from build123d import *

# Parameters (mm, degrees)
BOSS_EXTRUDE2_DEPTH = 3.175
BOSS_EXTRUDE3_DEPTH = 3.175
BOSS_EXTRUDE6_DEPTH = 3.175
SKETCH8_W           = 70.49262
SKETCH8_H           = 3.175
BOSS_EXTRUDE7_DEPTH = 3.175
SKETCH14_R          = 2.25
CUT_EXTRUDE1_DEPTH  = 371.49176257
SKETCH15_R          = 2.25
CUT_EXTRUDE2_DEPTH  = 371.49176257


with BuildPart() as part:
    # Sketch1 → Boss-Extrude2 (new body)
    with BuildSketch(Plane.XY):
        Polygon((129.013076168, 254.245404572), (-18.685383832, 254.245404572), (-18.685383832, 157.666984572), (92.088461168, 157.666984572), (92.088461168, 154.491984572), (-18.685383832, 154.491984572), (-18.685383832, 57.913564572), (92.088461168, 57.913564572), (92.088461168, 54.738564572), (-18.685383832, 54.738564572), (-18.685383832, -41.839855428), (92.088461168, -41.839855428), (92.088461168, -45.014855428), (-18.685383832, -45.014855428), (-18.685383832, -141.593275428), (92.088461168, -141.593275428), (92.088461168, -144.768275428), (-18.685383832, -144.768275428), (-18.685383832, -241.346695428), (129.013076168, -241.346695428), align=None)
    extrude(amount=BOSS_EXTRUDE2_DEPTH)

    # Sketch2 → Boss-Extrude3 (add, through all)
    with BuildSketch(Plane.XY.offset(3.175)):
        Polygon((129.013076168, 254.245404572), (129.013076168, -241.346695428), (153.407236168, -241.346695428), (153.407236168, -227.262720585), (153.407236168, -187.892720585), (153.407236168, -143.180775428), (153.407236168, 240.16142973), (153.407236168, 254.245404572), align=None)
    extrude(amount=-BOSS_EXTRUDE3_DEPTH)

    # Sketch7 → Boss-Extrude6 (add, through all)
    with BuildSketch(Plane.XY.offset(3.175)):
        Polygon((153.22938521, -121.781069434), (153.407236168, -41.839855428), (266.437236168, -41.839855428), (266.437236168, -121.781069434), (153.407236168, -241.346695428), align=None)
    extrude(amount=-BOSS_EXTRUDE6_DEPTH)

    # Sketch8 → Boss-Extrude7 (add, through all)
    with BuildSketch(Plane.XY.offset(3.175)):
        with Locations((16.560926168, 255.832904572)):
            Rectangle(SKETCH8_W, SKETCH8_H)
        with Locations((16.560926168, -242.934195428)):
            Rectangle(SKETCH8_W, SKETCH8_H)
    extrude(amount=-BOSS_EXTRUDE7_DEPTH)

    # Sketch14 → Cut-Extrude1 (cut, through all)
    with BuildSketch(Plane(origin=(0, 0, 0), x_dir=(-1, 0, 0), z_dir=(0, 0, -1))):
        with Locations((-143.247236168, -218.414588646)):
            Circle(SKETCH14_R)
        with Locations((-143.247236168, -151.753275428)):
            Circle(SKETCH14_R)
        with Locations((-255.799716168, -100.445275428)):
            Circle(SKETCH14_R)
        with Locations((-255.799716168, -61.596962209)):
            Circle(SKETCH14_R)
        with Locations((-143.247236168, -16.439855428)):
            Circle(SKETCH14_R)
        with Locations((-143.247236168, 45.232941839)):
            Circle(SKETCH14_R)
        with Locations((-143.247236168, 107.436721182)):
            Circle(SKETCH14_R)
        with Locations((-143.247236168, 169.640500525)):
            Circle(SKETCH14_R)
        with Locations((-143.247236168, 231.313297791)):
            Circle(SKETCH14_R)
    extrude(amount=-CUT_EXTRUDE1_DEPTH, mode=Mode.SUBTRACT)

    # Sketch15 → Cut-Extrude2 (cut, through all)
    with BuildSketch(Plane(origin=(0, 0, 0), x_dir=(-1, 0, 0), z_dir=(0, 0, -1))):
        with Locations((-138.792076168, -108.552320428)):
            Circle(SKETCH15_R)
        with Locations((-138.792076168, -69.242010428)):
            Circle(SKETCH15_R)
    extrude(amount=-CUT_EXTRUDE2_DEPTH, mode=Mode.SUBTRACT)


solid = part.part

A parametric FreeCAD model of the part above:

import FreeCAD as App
import Part
import Sketcher
from FreeCAD import Vector
Q = App.Units.Quantity


def add_polygon(sketch, points):
    """Adds a closed chain of lines whose ends are joined by coincident constraints."""
    first, n = sketch.GeometryCount, len(points)
    for a, b in zip(points, points[1:] + points[:1]):
        sketch.addGeometry(Part.LineSegment(App.Vector(*a, 0), App.Vector(*b, 0)), False)
    for i in range(n):
        sketch.addConstraint(Sketcher.Constraint("Coincident", first + i, 2, first + (i + 1) % n, 1))

doc = App.newDocument("Part")
body = doc.addObject("PartDesign::Body", "Body")

sketch1 = body.newObject("Sketcher::SketchObject", "Sketch")
sketch1.AttachmentSupport = (doc.getObject("XY_Plane"), [""])
sketch1.MapMode = "FlatFace"
add_polygon(sketch1, [(129.013076, 254.245405), (-18.685384, 254.245405), (-18.685384, 157.666985), (92.088461, 157.666985), (92.088461, 154.491985), (-18.685384, 154.491985), (-18.685384, 57.913565), (92.088461, 57.913565), (92.088461, 54.738565), (-18.685384, 54.738565), (-18.685384, -41.839855), (92.088461, -41.839855), (92.088461, -45.014855), (-18.685384, -45.014855), (-18.685384, -141.593275), (92.088461, -141.593275), (92.088461, -144.768275), (-18.685384, -144.768275), (-18.685384, -241.346695), (129.013076, -241.346695)])
sketch1.addConstraint(Sketcher.Constraint("Horizontal", 0))
sketch1.addConstraint(Sketcher.Constraint("Vertical", 1))
sketch1.addConstraint(Sketcher.Constraint("Horizontal", 2))
sketch1.addConstraint(Sketcher.Constraint("Vertical", 3))
sketch1.addConstraint(Sketcher.Constraint("Horizontal", 4))
sketch1.addConstraint(Sketcher.Constraint("Vertical", 5))
sketch1.addConstraint(Sketcher.Constraint("Horizontal", 6))
sketch1.addConstraint(Sketcher.Constraint("Vertical", 7))
sketch1.addConstraint(Sketcher.Constraint("Horizontal", 8))
sketch1.addConstraint(Sketcher.Constraint("Vertical", 9))
sketch1.addConstraint(Sketcher.Constraint("Horizontal", 10))
sketch1.addConstraint(Sketcher.Constraint("Vertical", 11))
sketch1.addConstraint(Sketcher.Constraint("Horizontal", 12))
sketch1.addConstraint(Sketcher.Constraint("Vertical", 13))
sketch1.addConstraint(Sketcher.Constraint("Horizontal", 14))
sketch1.addConstraint(Sketcher.Constraint("Vertical", 15))
sketch1.addConstraint(Sketcher.Constraint("Horizontal", 16))
sketch1.addConstraint(Sketcher.Constraint("Vertical", 17))
sketch1.addConstraint(Sketcher.Constraint("Horizontal", 18))
sketch1.addConstraint(Sketcher.Constraint("Vertical", 19))
sketch1.addConstraint(Sketcher.Constraint("Vertical", 1, 2, 4, 2))
sketch1.addConstraint(Sketcher.Constraint("Vertical", 3, 2, 6, 2))
sketch1.addConstraint(Sketcher.Constraint("Vertical", 5, 2, 8, 2))
sketch1.addConstraint(Sketcher.Constraint("Vertical", 7, 2, 10, 2))
sketch1.addConstraint(Sketcher.Constraint("Vertical", 9, 2, 12, 2))
sketch1.addConstraint(Sketcher.Constraint("Vertical", 11, 2, 14, 2))
sketch1.addConstraint(Sketcher.Constraint("Vertical", 13, 2, 16, 2))
sketch1.addConstraint(Sketcher.Constraint("Equal", 1, 5))
sketch1.addConstraint(Sketcher.Constraint("Equal", 3, 7))
sketch1.addConstraint(Sketcher.Constraint("Equal", 5, 9))
sketch1.addConstraint(Sketcher.Constraint("Equal", 7, 11))
sketch1.addConstraint(Sketcher.Constraint("Equal", 9, 13))
sketch1.addConstraint(Sketcher.Constraint("Equal", 11, 15))
sketch1.addConstraint(Sketcher.Constraint("Equal", 13, 17))
sketch1.addConstraint(Sketcher.Constraint("DistanceY", 3, 2, 3, 1, Q("0.125 in")))
sketch1.addConstraint(Sketcher.Constraint("DistanceX", 0, 2, 0, 1, Q("5.8149 in")))
sketch1.addConstraint(Sketcher.Constraint("DistanceY", 1, 2, 1, 1, Q("3.8023 in")))
sketch1.addConstraint(Sketcher.Constraint("DistanceX", 2, 1, 2, 2, Q("110.773845 mm")))
sketch1.addConstraint(Sketcher.Constraint("DistanceX", -1, 1, 2, 2, Q("92.088461 mm")))
sketch1.addConstraint(Sketcher.Constraint("DistanceY", -1, 1, 0, 2, Q("254.245405 mm")))
pad1 = body.newObject("PartDesign::Pad", "Pad")
pad1.Profile = sketch1
pad1.Length = Q("0.125 in")

sketch2 = body.newObject("Sketcher::SketchObject", "Sketch001")
sketch2.AttachmentSupport = (doc.getObject("XY_Plane"), [""])
sketch2.MapMode = "FlatFace"
sketch2.AttachmentOffset = App.Placement(Vector(0, 0, 0.125 * 25.4), App.Rotation())
add_polygon(sketch2, [(129.013076, 254.245405), (129.013076, -241.346695), (153.407236, -241.346695), (153.407236, 254.245405)])
sketch2.addConstraint(Sketcher.Constraint("Vertical", 0))
sketch2.addConstraint(Sketcher.Constraint("Horizontal", 1))
sketch2.addConstraint(Sketcher.Constraint("Vertical", 2))
sketch2.addConstraint(Sketcher.Constraint("Horizontal", 3))
sketch2.addConstraint(Sketcher.Constraint("DistanceX", 1, 1, 1, 2, Q("0.9604 in")))
sketch2.addConstraint(Sketcher.Constraint("DistanceY", 0, 2, 0, 1, Q("19.5115 in")))
sketch2.addConstraint(Sketcher.Constraint("DistanceX", -1, 1, 0, 2, Q("129.013076 mm")))
sketch2.addConstraint(Sketcher.Constraint("DistanceY", 0, 2, -1, 1, Q("241.346695 mm")))
pad2 = body.newObject("PartDesign::Pad", "Pad001")
pad2.Profile = sketch2
pad2.Length = Q("0.125 in")
pad2.Reversed = True

sketch3 = body.newObject("Sketcher::SketchObject", "Sketch002")
sketch3.AttachmentSupport = (doc.getObject("XY_Plane"), [""])
sketch3.MapMode = "FlatFace"
sketch3.AttachmentOffset = App.Placement(Vector(0, 0, 0.125 * 25.4), App.Rotation())
add_polygon(sketch3, [(153.407236, -41.839855), (153.229385, -121.781069), (153.407236, -241.346695), (266.437236, -121.781069), (266.437236, -41.839855)])
sketch3.addConstraint(Sketcher.Constraint("Vertical", 3))
sketch3.addConstraint(Sketcher.Constraint("Horizontal", 4))
sketch3.addConstraint(Sketcher.Constraint("Horizontal", 0, 2, 2, 2))
sketch3.addConstraint(Sketcher.Constraint("Vertical", 1, 2, 4, 2))
sketch3.addConstraint(Sketcher.Constraint("DistanceX", 4, 2, 4, 1, Q("4.45 in")))
sketch3.addConstraint(Sketcher.Constraint("DistanceY", 1, 2, 3, 2, Q("7.8546 in")))
sketch3.addConstraint(Sketcher.Constraint("Distance", 0, Q("79.941412 mm")))
sketch3.addConstraint(Sketcher.Constraint("Distance", 1, Q("119.565758 mm")))
sketch3.addConstraint(Sketcher.Constraint("DistanceY", 0, 2, -1, 1, Q("121.781069 mm")))
sketch3.addConstraint(Sketcher.Constraint("DistanceX", -1, 1, 0, 2, Q("153.229385 mm")))
pad3 = body.newObject("PartDesign::Pad", "Pad002")
pad3.Profile = sketch3
pad3.Length = Q("0.125 in")
pad3.Reversed = True

sketch4 = body.newObject("Sketcher::SketchObject", "Sketch003")
sketch4.AttachmentSupport = (doc.getObject("XY_Plane"), [""])
sketch4.MapMode = "FlatFace"
sketch4.AttachmentOffset = App.Placement(Vector(0, 0, 0.125 * 25.4), App.Rotation())
add_polygon(sketch4, [(-18.685384, 257.420405), (-18.685384, 254.245405), (51.807236, 254.245405), (51.807236, 257.420405)])
add_polygon(sketch4, [(-18.685384, -241.346695), (-18.685384, -244.521695), (51.807236, -244.521695), (51.807236, -241.346695)])
sketch4.addConstraint(Sketcher.Constraint("Vertical", 0))
sketch4.addConstraint(Sketcher.Constraint("Horizontal", 1))
sketch4.addConstraint(Sketcher.Constraint("Vertical", 2))
sketch4.addConstraint(Sketcher.Constraint("Horizontal", 3))
sketch4.addConstraint(Sketcher.Constraint("Vertical", 4))
sketch4.addConstraint(Sketcher.Constraint("Horizontal", 5))
sketch4.addConstraint(Sketcher.Constraint("Vertical", 6))
sketch4.addConstraint(Sketcher.Constraint("Horizontal", 7))
sketch4.addConstraint(Sketcher.Constraint("Vertical", 3, 2, 4, 2))
sketch4.addConstraint(Sketcher.Constraint("Vertical", 2, 2, 5, 2))
sketch4.addConstraint(Sketcher.Constraint("Equal", 2, 4))
sketch4.addConstraint(Sketcher.Constraint("DistanceY", 0, 2, 0, 1, Q("0.125 in")))
sketch4.addConstraint(Sketcher.Constraint("DistanceX", 1, 1, 1, 2, Q("2.7753 in")))
sketch4.addConstraint(Sketcher.Constraint("DistanceY", 4, 2, 0, 2, Q("19.6365 in")))
sketch4.addConstraint(Sketcher.Constraint("DistanceX", 0, 2, -1, 1, Q("18.685384 mm")))
sketch4.addConstraint(Sketcher.Constraint("DistanceY", -1, 1, 0, 2, Q("254.245405 mm")))
pad4 = body.newObject("PartDesign::Pad", "Pad003")
pad4.Profile = sketch4
pad4.Type = "UpToLast"
pad4.Reversed = True

sketch5 = body.newObject("Sketcher::SketchObject", "Sketch004")
sketch5.AttachmentSupport = (doc.getObject("XY_Plane"), [""])
sketch5.MapMode = "FlatFace"
sketch5.addGeometry(Part.Circle(Vector(143.247236, -218.414589, 0), Vector(0, 0, 1), 2.25), False)
sketch5.addGeometry(Part.Circle(Vector(143.247236, -151.753275, 0), Vector(0, 0, 1), 2.25), False)
sketch5.addGeometry(Part.Circle(Vector(255.799716, -100.445275, 0), Vector(0, 0, 1), 2.25), False)
sketch5.addGeometry(Part.Circle(Vector(255.799716, -61.596962, 0), Vector(0, 0, 1), 2.25), False)
sketch5.addGeometry(Part.Circle(Vector(143.247236, -16.439855, 0), Vector(0, 0, 1), 2.25), False)
sketch5.addGeometry(Part.Circle(Vector(143.247236, 45.232942, 0), Vector(0, 0, 1), 2.25), False)
sketch5.addGeometry(Part.Circle(Vector(143.247236, 107.436721, 0), Vector(0, 0, 1), 2.25), False)
sketch5.addGeometry(Part.Circle(Vector(143.247236, 169.640501, 0), Vector(0, 0, 1), 2.25), False)
sketch5.addGeometry(Part.Circle(Vector(143.247236, 231.313298, 0), Vector(0, 0, 1), 2.25), False)
sketch5.addConstraint(Sketcher.Constraint("Equal", 0, 1))
sketch5.addConstraint(Sketcher.Constraint("Equal", 1, 2))
sketch5.addConstraint(Sketcher.Constraint("Equal", 2, 3))
sketch5.addConstraint(Sketcher.Constraint("Equal", 3, 4))
sketch5.addConstraint(Sketcher.Constraint("Equal", 4, 5))
sketch5.addConstraint(Sketcher.Constraint("Equal", 5, 6))
sketch5.addConstraint(Sketcher.Constraint("Equal", 6, 7))
sketch5.addConstraint(Sketcher.Constraint("Equal", 7, 8))
sketch5.addConstraint(Sketcher.Constraint("Vertical", 0, 3, 1, 3))
sketch5.addConstraint(Sketcher.Constraint("Vertical", 2, 3, 3, 3))
sketch5.addConstraint(Sketcher.Constraint("Vertical", 1, 3, 4, 3))
sketch5.addConstraint(Sketcher.Constraint("Vertical", 4, 3, 5, 3))
sketch5.addConstraint(Sketcher.Constraint("Vertical", 5, 3, 6, 3))
sketch5.addConstraint(Sketcher.Constraint("Vertical", 6, 3, 7, 3))
sketch5.addConstraint(Sketcher.Constraint("Vertical", 7, 3, 8, 3))
sketch5.addConstraint(Sketcher.Constraint("Diameter", 0, Q("4.5 mm")))
sketch5.addConstraint(Sketcher.Constraint("DistanceY", 1, 3, 2, 3, Q("2.02 in")))
sketch5.addConstraint(Sketcher.Constraint("DistanceX", 1, 3, 2, 3, Q("4.4312 in")))
sketch5.addConstraint(Sketcher.Constraint("DistanceY", 1, 3, 4, 3, Q("5.3273 in")))
sketch5.addConstraint(Sketcher.Constraint("DistanceY", 3, 3, 8, 3, Q("11.5319 in")))
sketch5.addConstraint(Sketcher.Constraint("DistanceY", -1, 1, 7, 3, Q("169.640501 mm")))
sketch5.addConstraint(Sketcher.Constraint("DistanceY", 0, 3, -1, 1, Q("218.414589 mm")))
sketch5.addConstraint(Sketcher.Constraint("DistanceY", -1, 1, 5, 3, Q("45.232942 mm")))
sketch5.addConstraint(Sketcher.Constraint("DistanceY", -1, 1, 6, 3, Q("107.436721 mm")))
sketch5.addConstraint(Sketcher.Constraint("DistanceX", -1, 1, 0, 3, Q("143.247236 mm")))
sketch5.addConstraint(Sketcher.Constraint("DistanceY", 1, 3, -1, 1, Q("151.753275 mm")))
sketch5.addConstraint(Sketcher.Constraint("DistanceY", 3, 3, -1, 1, Q("61.596962 mm")))
pocket1 = body.newObject("PartDesign::Pocket", "Pocket")
pocket1.Profile = sketch5
pocket1.Type = "ThroughAll"
pocket1.Reversed = True

sketch6 = body.newObject("Sketcher::SketchObject", "Sketch005")
sketch6.AttachmentSupport = (doc.getObject("XY_Plane"), [""])
sketch6.MapMode = "FlatFace"
sketch6.addGeometry(Part.Circle(Vector(138.792076, -108.55232, 0), Vector(0, 0, 1), 2.25), False)
sketch6.addGeometry(Part.Circle(Vector(138.792076, -69.24201, 0), Vector(0, 0, 1), 2.25), False)
sketch6.addConstraint(Sketcher.Constraint("Equal", 0, 1))
sketch6.addConstraint(Sketcher.Constraint("Vertical", 0, 3, 1, 3))
sketch6.addConstraint(Sketcher.Constraint("Diameter", 0, Q("4.5 mm")))
sketch6.addConstraint(Sketcher.Constraint("DistanceY", 0, 3, -1, 1, Q("108.55232 mm")))
sketch6.addConstraint(Sketcher.Constraint("DistanceY", 1, 3, -1, 1, Q("69.24201 mm")))
sketch6.addConstraint(Sketcher.Constraint("DistanceX", -1, 1, 0, 3, Q("138.792076 mm")))
pocket2 = body.newObject("PartDesign::Pocket", "Pocket001")
pocket2.Profile = sketch6
pocket2.Type = "ThroughAll"
pocket2.Reversed = True

doc.recompute()
